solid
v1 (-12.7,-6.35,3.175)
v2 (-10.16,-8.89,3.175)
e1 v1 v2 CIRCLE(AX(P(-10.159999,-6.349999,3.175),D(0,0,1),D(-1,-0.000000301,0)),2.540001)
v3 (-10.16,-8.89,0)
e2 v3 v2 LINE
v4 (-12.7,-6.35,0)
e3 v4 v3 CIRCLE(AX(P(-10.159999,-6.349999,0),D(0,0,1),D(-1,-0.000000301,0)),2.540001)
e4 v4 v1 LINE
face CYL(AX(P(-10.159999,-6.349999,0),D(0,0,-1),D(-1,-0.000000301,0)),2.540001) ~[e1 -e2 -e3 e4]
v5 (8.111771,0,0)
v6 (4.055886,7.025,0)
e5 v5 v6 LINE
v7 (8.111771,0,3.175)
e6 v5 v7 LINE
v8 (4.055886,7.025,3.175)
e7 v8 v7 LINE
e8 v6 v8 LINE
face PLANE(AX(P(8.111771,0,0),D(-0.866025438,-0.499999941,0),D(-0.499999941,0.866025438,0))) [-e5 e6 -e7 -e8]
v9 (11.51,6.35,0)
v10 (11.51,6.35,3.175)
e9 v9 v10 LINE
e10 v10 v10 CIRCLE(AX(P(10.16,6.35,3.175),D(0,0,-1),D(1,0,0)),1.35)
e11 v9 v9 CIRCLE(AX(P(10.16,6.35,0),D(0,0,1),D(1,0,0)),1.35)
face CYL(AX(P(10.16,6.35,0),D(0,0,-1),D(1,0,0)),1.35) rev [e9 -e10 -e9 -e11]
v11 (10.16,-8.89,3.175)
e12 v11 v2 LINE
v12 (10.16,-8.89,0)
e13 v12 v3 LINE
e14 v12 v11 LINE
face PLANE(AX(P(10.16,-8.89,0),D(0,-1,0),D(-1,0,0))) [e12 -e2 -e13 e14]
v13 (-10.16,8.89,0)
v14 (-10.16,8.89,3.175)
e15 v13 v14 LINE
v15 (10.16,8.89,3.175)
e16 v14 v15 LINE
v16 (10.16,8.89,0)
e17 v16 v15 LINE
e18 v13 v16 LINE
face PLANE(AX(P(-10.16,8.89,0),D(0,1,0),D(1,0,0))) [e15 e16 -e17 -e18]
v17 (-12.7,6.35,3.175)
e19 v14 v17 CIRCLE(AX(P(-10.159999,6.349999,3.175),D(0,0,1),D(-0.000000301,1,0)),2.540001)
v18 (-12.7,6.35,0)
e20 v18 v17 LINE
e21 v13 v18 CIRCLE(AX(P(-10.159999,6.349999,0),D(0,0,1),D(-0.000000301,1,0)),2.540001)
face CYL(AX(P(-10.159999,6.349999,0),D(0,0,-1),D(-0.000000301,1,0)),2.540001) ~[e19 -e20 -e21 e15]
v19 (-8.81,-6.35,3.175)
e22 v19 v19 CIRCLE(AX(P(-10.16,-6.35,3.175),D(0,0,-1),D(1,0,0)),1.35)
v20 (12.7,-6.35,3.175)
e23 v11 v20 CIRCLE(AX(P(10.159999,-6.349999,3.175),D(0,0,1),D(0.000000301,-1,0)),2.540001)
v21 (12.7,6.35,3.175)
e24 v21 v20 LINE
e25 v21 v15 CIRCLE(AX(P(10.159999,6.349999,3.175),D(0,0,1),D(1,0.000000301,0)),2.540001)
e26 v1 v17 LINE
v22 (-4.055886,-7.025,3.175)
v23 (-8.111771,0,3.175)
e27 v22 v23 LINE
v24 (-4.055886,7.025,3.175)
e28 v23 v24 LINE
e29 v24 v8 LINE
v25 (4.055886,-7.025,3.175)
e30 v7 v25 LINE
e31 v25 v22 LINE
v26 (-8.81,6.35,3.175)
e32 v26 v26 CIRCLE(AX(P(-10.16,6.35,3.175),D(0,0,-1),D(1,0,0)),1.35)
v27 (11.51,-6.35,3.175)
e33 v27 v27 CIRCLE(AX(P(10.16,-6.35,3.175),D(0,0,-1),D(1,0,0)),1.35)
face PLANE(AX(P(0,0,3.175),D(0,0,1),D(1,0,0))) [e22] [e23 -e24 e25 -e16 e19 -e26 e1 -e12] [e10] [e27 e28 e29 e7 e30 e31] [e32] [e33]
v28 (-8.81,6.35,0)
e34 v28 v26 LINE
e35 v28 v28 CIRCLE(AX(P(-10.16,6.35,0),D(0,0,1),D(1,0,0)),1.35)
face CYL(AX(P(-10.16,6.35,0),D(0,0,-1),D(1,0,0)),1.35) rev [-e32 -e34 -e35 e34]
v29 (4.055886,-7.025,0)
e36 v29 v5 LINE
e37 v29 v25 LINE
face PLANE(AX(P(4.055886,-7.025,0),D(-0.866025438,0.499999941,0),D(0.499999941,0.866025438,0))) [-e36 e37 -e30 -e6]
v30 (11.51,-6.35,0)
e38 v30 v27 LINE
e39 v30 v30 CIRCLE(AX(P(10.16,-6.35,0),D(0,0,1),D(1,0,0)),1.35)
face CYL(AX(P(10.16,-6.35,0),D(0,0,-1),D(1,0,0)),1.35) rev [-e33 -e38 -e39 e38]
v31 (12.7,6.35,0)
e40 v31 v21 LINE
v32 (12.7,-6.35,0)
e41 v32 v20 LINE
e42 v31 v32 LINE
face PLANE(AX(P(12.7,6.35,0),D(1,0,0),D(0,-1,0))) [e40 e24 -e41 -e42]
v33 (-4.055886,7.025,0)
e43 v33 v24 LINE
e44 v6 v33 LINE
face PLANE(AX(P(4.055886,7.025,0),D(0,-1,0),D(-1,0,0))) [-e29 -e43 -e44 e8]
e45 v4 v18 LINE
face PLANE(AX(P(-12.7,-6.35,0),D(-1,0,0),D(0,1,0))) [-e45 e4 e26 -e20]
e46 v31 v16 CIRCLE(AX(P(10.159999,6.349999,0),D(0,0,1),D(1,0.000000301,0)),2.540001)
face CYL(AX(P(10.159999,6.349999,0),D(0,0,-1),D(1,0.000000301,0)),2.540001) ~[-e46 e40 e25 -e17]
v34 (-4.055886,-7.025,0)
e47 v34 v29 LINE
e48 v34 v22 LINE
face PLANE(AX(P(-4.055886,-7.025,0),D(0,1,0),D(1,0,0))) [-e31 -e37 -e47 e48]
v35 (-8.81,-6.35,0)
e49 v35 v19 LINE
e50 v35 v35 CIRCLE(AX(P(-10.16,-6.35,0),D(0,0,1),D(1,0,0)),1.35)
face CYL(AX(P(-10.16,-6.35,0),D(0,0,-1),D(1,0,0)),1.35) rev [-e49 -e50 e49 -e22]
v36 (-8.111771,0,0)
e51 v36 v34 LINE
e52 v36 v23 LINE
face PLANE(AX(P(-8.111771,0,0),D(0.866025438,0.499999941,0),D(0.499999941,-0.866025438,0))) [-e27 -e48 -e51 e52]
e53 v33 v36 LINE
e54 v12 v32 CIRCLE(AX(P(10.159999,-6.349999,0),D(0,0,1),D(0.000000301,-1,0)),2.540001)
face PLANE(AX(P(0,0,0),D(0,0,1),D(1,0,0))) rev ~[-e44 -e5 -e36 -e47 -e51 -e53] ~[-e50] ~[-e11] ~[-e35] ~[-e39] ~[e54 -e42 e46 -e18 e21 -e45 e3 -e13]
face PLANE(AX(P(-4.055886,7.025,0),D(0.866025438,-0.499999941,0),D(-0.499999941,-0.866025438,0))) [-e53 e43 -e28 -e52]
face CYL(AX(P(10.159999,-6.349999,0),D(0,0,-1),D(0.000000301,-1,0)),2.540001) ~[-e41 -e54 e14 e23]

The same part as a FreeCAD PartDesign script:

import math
import FreeCAD as App
import Part
import Sketcher
from FreeCAD import Vector
Q = App.Units.Quantity


def add_polygon(sketch, points):
    """Adds a closed chain of lines whose ends are joined by coincident constraints."""
    first, n = sketch.GeometryCount, len(points)
    for a, b in zip(points, points[1:] + points[:1]):
        sketch.addGeometry(Part.LineSegment(App.Vector(*a, 0), App.Vector(*b, 0)), False)
    for i in range(n):
        sketch.addConstraint(Sketcher.Constraint("Coincident", first + i, 2, first + (i + 1) % n, 1))

doc = App.newDocument("Part")
body = doc.addObject("PartDesign::Body", "Body")

sketch1 = doc.addObject("Sketcher::SketchObject", "Sketch")
body.addObject(sketch1)
sketch1.AttachmentSupport = (doc.XY_Plane, [""])
sketch1.MapMode = "FlatFace"
sketch1.addGeometry([
    Part.ArcOfCircle(Part.Circle(Vector(-10.2, 6.3, 0), Vector(0, 0, 1), 2.5), math.radians(90), math.radians(180)),
    Part.LineSegment(Vector(-12.7, 6.3, 0), Vector(-12.7, -6.3, 0)),
    Part.ArcOfCircle(Part.Circle(Vector(-10.2, -6.3, 0), Vector(0, 0, 1), 2.5), math.radians(-180), math.radians(-90)),
    Part.LineSegment(Vector(-10.2, -8.9, 0), Vector(10.2, -8.9, 0)),
    Part.ArcOfCircle(Part.Circle(Vector(10.2, -6.3, 0), Vector(0, 0, 1), 2.5), math.radians(-90), math.radians(0)),
    Part.LineSegment(Vector(12.7, -6.3, 0), Vector(12.7, 6.3, 0)),
    Part.ArcOfCircle(Part.Circle(Vector(10.2, 6.3, 0), Vector(0, 0, 1), 2.5), math.radians(0), math.radians(90)),
    Part.LineSegment(Vector(10.2, 8.9, 0), Vector(-10.2, 8.9, 0)),
], False)
sketch1.addConstraint([
    Sketcher.Constraint("Tangent", 0, 2, 1, 1),
    Sketcher.Constraint("Tangent", 1, 2, 2, 1),
    Sketcher.Constraint("Tangent", 2, 2, 3, 1),
    Sketcher.Constraint("Tangent", 3, 2, 4, 1),
    Sketcher.Constraint("Tangent", 4, 2, 5, 1),
    Sketcher.Constraint("Tangent", 5, 2, 6, 1),
    Sketcher.Constraint("Tangent", 6, 2, 7, 1),
    Sketcher.Constraint("Tangent", 7, 2, 0, 1),
    Sketcher.Constraint("Vertical", 1),
    Sketcher.Constraint("Horizontal", 3),
    Sketcher.Constraint("Vertical", 5),
    Sketcher.Constraint("Horizontal", 7),
    Sketcher.Constraint("Equal", 0, 2),
    Sketcher.Constraint("Equal", 2, 4),
    Sketcher.Constraint("Equal", 4, 6),
    Sketcher.Constraint("Symmetric", 0, 3, 4, 3, -1, 1),
    Sketcher.Constraint("Radius", 0, Q("0.1 in")),
    Sketcher.Constraint("DistanceX", 3, 1, 3, 2, Q("0.8 in")),
    Sketcher.Constraint("DistanceY", 1, 2, 1, 1, Q("0.5 in")),
])
pad1 = doc.addObject("PartDesign::Pad", "Pad")
body.addObject(pad1)
pad1.Profile = sketch1
pad1.Length = Q("0.125 in")

sketch2 = doc.addObject("Sketcher::SketchObject", "Sketch001")
body.addObject(sketch2)
sketch2.AttachmentSupport = (doc.XY_Plane, [""])
sketch2.MapMode = "FlatFace"
sketch2.addGeometry([
    Part.Circle(Vector(-10.2, 6.3, 0), Vector(0, 0, 1), 1.4),
    Part.Circle(Vector(-10.2, -6.3, 0), Vector(0, 0, 1), 1.4),
    Part.Circle(Vector(10.2, 6.3, 0), Vector(0, 0, 1), 1.4),
    Part.Circle(Vector(10.2, -6.3, 0), Vector(0, 0, 1), 1.4),
], False)
sketch2.addConstraint([
    Sketcher.Constraint("Equal", 0, 1),
    Sketcher.Constraint("Equal", 1, 2),
    Sketcher.Constraint("Equal", 2, 3),
    Sketcher.Constraint("Symmetric", 1, 3, 2, 3, -1, 1),
    Sketcher.Constraint("Symmetric", 0, 3, 3, 3, -1, 1),
    Sketcher.Constraint("Symmetric", 0, 3, 2, 3, -2),
    Sketcher.Constraint("DistanceX", 0, 3, -1, 1, Q("0.4 in")),
    Sketcher.Constraint("DistanceY", 1, 3, 0, 3, Q("0.5 in")),
    Sketcher.Constraint("Diameter", 0, 2.7),
])
pocket1 = doc.addObject("PartDesign::Pocket", "Pocket")
body.addObject(pocket1)
pocket1.Profile = sketch2
pocket1.Type = "ThroughAll"
pocket1.Reversed = True

sketch3 = doc.addObject("Sketcher::SketchObject", "Sketch002")
body.addObject(sketch3)
sketch3.AttachmentSupport = (doc.XY_Plane, [""])
sketch3.MapMode = "FlatFace"
add_polygon(sketch3, [(4, -7), (8, 0), (4, 7), (-4, 7), (-8, 0), (-4, -7)])
sketch3.addConstraint([
    Sketcher.Constraint("Horizontal", 2),
    Sketcher.Constraint("Horizontal", 5),
    Sketcher.Constraint("Symmetric", 0, 2, 3, 2, -1, 1),
    Sketcher.Constraint("Symmetric", 1, 2, 4, 2, -1, 1),
    Sketcher.Constraint("PointOnObject", 0, 2, -1),
    Sketcher.Constraint("Parallel", 0, 3),
    Sketcher.Constraint("Vertical", 2, 2, 4, 2),
    Sketcher.Constraint("Angle", 0, Q("60.000004 deg")),
    Sketcher.Constraint("DistanceY", -1, 1, 1, 2, 7.025),
    Sketcher.Constraint("DistanceX", 2, 2, 2, 1, 8.111772),
])
pocket2 = doc.addObject("PartDesign::Pocket", "Pocket001")
body.addObject(pocket2)
pocket2.Profile = sketch3
pocket2.Type = "ThroughAll"
pocket2.Reversed = True

doc.recompute()
